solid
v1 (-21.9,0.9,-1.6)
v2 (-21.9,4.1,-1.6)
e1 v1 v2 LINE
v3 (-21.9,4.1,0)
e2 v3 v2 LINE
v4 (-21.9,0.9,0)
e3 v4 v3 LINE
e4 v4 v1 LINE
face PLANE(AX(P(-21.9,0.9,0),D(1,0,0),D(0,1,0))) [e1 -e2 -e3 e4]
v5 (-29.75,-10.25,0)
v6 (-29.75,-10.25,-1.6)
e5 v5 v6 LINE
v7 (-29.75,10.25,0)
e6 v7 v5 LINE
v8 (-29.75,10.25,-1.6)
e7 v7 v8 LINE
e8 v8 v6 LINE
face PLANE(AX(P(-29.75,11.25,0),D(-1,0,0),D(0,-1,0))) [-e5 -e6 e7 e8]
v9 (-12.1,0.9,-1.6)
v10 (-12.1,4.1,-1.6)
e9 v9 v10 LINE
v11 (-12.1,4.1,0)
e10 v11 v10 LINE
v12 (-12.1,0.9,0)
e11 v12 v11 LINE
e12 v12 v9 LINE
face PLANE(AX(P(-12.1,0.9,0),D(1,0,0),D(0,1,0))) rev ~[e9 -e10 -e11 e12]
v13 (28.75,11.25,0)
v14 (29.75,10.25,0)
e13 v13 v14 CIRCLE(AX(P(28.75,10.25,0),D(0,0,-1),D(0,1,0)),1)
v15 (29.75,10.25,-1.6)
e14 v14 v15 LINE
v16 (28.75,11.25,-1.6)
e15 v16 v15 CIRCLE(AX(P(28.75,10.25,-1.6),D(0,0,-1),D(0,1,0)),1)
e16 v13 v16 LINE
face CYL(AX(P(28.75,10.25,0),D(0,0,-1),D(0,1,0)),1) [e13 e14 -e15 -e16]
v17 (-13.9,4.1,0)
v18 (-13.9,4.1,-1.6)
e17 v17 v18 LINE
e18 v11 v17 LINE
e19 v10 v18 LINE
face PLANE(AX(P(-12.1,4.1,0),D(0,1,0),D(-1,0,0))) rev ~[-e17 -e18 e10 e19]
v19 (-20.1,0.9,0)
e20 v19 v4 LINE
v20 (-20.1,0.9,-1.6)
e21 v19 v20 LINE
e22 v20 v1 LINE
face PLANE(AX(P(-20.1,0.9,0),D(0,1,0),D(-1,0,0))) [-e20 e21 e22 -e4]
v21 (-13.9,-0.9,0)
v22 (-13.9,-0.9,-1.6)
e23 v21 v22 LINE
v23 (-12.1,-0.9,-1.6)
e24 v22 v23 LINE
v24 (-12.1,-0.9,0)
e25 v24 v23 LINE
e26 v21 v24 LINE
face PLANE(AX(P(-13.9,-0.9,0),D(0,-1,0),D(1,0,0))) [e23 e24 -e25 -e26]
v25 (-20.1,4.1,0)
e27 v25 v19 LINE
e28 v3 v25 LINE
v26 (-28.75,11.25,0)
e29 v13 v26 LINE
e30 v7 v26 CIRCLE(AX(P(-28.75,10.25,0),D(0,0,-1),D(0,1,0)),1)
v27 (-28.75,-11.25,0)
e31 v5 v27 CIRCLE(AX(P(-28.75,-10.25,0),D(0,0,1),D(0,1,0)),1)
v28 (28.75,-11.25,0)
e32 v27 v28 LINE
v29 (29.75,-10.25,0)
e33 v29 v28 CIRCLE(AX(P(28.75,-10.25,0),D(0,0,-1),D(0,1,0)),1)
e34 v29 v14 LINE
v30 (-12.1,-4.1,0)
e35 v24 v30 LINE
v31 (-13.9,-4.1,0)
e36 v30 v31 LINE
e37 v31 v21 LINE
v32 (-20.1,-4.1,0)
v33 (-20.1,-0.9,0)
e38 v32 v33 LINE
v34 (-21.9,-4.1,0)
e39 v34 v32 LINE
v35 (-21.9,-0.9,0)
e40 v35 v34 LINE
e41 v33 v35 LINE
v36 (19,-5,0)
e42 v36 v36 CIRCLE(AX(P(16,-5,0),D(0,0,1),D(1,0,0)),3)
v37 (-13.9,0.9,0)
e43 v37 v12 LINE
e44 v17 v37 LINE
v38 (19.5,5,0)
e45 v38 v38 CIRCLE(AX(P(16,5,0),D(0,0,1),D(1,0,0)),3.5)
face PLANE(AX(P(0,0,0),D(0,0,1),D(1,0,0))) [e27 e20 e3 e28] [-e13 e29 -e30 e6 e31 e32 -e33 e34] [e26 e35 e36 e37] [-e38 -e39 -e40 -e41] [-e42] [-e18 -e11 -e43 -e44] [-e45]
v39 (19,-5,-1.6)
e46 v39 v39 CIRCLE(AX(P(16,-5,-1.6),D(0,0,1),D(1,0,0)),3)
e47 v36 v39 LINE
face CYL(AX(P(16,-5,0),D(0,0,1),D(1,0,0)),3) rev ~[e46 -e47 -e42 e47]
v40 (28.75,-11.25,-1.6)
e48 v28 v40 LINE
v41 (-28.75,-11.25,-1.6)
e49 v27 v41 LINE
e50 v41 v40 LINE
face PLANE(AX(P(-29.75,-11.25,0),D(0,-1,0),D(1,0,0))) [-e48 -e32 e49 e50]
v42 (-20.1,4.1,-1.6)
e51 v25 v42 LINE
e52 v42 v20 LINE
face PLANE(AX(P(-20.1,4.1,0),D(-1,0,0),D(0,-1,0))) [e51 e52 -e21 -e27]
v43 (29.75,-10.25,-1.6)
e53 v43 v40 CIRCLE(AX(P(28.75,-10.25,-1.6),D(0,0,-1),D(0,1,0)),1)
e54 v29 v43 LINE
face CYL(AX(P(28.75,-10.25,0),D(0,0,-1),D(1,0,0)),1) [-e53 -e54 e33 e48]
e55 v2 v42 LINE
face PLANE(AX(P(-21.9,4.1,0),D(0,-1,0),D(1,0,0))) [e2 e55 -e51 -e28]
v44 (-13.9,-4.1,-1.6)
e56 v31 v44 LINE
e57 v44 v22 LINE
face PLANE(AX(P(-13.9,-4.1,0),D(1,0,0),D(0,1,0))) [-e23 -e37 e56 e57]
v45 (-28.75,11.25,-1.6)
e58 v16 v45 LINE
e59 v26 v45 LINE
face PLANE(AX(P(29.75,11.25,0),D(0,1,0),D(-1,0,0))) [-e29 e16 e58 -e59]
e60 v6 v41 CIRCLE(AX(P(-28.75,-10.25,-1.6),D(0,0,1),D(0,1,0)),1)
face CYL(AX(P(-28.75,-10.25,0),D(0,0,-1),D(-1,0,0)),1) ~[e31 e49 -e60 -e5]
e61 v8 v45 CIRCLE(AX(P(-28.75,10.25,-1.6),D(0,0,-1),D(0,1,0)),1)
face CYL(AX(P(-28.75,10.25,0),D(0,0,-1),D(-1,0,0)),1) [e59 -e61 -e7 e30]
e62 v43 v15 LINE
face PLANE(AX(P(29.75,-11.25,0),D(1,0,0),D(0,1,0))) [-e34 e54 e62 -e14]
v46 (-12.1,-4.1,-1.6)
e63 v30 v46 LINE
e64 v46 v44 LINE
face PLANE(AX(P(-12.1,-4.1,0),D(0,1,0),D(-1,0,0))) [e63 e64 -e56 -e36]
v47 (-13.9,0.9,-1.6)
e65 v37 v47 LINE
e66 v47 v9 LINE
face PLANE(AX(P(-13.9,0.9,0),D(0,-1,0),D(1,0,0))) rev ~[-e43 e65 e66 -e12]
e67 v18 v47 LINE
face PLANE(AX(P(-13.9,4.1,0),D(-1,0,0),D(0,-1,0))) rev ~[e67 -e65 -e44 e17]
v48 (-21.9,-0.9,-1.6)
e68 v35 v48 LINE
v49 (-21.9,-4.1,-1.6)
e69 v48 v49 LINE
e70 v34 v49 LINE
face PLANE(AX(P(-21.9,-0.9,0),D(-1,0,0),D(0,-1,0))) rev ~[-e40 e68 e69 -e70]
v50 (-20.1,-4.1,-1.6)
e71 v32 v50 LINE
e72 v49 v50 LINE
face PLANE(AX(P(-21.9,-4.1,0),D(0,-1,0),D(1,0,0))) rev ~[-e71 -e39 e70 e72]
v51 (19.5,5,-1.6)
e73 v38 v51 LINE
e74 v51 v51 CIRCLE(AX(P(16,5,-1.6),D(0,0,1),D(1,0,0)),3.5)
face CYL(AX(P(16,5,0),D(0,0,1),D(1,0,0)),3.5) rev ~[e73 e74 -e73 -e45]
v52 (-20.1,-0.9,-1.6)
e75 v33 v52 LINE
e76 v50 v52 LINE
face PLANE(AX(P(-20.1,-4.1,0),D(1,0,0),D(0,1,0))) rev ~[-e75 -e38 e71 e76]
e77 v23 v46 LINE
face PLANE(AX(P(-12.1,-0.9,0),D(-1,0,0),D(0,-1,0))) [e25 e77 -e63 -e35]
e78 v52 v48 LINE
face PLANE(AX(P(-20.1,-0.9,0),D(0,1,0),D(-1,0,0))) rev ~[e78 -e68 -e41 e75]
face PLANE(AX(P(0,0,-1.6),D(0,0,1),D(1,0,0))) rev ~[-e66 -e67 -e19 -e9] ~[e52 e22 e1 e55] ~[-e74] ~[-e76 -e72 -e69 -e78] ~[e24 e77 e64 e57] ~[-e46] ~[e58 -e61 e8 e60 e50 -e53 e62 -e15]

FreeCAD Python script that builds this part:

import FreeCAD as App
import Part
import Sketcher
from FreeCAD import Vector
Q = App.Units.Quantity


def edges_at(feature, points):
    """Names of the edges that pass closest to the given points."""
    edges = feature.Shape.Edges
    near = lambda p: min(range(len(edges)), key=lambda i: edges[i].distToShape(Part.Vertex(*p))[0])
    return sorted({f"Edge{near(p) + 1}" for p in points})

doc = App.newDocument("Part")
body = doc.addObject("PartDesign::Body", "Body")

sketch1 = body.newObject("Sketcher::SketchObject", "Sketch")
sketch1.AttachmentSupport = (doc.getObject("XY_Plane"), [""])
sketch1.MapMode = "FlatFace"
sketch1.addGeometry(Part.LineSegment(Vector(-29.75, 11.25, 0), Vector(-29.75, -11.25, 0)), False)
sketch1.addGeometry(Part.LineSegment(Vector(-29.75, -11.25, 0), Vector(29.75, -11.25, 0)), False)
sketch1.addGeometry(Part.LineSegment(Vector(29.75, -11.25, 0), Vector(29.75, 11.25, 0)), False)
sketch1.addGeometry(Part.LineSegment(Vector(29.75, 11.25, 0), Vector(-29.75, 11.25, 0)), False)
sketch1.addConstraint(Sketcher.Constraint("Coincident", 0, 2, 1, 1))
sketch1.addConstraint(Sketcher.Constraint("Coincident", 1, 2, 2, 1))
sketch1.addConstraint(Sketcher.Constraint("Coincident", 2, 2, 3, 1))
sketch1.addConstraint(Sketcher.Constraint("Coincident", 3, 2, 0, 1))
sketch1.addConstraint(Sketcher.Constraint("Vertical", 0))
sketch1.addConstraint(Sketcher.Constraint("Horizontal", 1))
sketch1.addConstraint(Sketcher.Constraint("Vertical", 2))
sketch1.addConstraint(Sketcher.Constraint("Horizontal", 3))
sketch1.addConstraint(Sketcher.Constraint("Symmetric", 0, 2, 2, 2, -1, 1))
sketch1.addConstraint(Sketcher.Constraint("DistanceX", 1, 1, 1, 2, Q("59.5 mm")))
sketch1.addConstraint(Sketcher.Constraint("DistanceY", 0, 2, 0, 1, Q("22.5 mm")))
pad1 = body.newObject("PartDesign::Pad", "Pad")
pad1.Profile = sketch1
pad1.Length = 1.6
pad1.Reversed = True
doc.recompute()

fillet = body.newObject("PartDesign::Fillet", "Fillet")
fillet.Base = (pad1, edges_at(pad1, [
    (29.75, 11.25, -0.8),
    (-29.75, 11.25, -0.8),
    (29.75, -11.25, -0.8),
    (-29.75, -11.25, -0.8),
]))
fillet.Radius = 1

sketch2 = body.newObject("Sketcher::SketchObject", "Sketch001")
sketch2.AttachmentSupport = (doc.getObject("XY_Plane"), [""])
sketch2.MapMode = "FlatFace"
sketch2.addGeometry(Part.LineSegment(Vector(-20.1, 4.1, 0), Vector(-21.9, 4.1, 0)), False)
sketch2.addGeometry(Part.LineSegment(Vector(-21.9, 4.1, 0), Vector(-21.9, 0.9, 0)), False)
sketch2.addGeometry(Part.LineSegment(Vector(-21.9, 0.9, 0), Vector(-20.1, 0.9, 0)), False)
sketch2.addGeometry(Part.LineSegment(Vector(-20.1, 0.9, 0), Vector(-20.1, 4.1, 0)), False)
sketch2.addGeometry(Part.LineSegment(Vector(-20.1, -4.1, 0), Vector(-20.1, -0.9, 0)), False)
sketch2.addGeometry(Part.LineSegment(Vector(-20.1, -0.9, 0), Vector(-21.9, -0.9, 0)), False)
sketch2.addGeometry(Part.LineSegment(Vector(-21.9, -0.9, 0), Vector(-21.9, -4.1, 0)), False)
sketch2.addGeometry(Part.LineSegment(Vector(-21.9, -4.1, 0), Vector(-20.1, -4.1, 0)), False)
sketch2.addGeometry(Part.LineSegment(Vector(-12.1, 0.9, 0), Vector(-12.1, 4.1, 0)), False)
sketch2.addGeometry(Part.LineSegment(Vector(-12.1, 4.1, 0), Vector(-13.9, 4.1, 0)), False)
sketch2.addGeometry(Part.LineSegment(Vector(-13.9, 4.1, 0), Vector(-13.9, 0.9, 0)), False)
sketch2.addGeometry(Part.LineSegment(Vector(-13.9, 0.9, 0), Vector(-12.1, 0.9, 0)), False)
sketch2.addGeometry(Part.LineSegment(Vector(-12.1, -0.9, 0), Vector(-13.9, -0.9, 0)), False)
sketch2.addGeometry(Part.LineSegment(Vector(-13.9, -0.9, 0), Vector(-13.9, -4.1, 0)), False)
sketch2.addGeometry(Part.LineSegment(Vector(-13.9, -4.1, 0), Vector(-12.1, -4.1, 0)), False)
sketch2.addGeometry(Part.LineSegment(Vector(-12.1, -4.1, 0), Vector(-12.1, -0.9, 0)), False)
sketch2.addConstraint(Sketcher.Constraint("Coincident", 0, 2, 1, 1))
sketch2.addConstraint(Sketcher.Constraint("Coincident", 1, 2, 2, 1))
sketch2.addConstraint(Sketcher.Constraint("Coincident", 2, 2, 3, 1))
sketch2.addConstraint(Sketcher.Constraint("Coincident", 3, 2, 0, 1))
sketch2.addConstraint(Sketcher.Constraint("Coincident", 4, 2, 5, 1))
sketch2.addConstraint(Sketcher.Constraint("Coincident", 5, 2, 6, 1))
sketch2.addConstraint(Sketcher.Constraint("Coincident", 6, 2, 7, 1))
sketch2.addConstraint(Sketcher.Constraint("Coincident", 7, 2, 4, 1))
sketch2.addConstraint(Sketcher.Constraint("Coincident", 8, 2, 9, 1))
sketch2.addConstraint(Sketcher.Constraint("Coincident", 9, 2, 10, 1))
sketch2.addConstraint(Sketcher.Constraint("Coincident", 10, 2, 11, 1))
sketch2.addConstraint(Sketcher.Constraint("Coincident", 11, 2, 8, 1))
sketch2.addConstraint(Sketcher.Constraint("Coincident", 12, 2, 13, 1))
sketch2.addConstraint(Sketcher.Constraint("Coincident", 13, 2, 14, 1))
sketch2.addConstraint(Sketcher.Constraint("Coincident", 14, 2, 15, 1))
sketch2.addConstraint(Sketcher.Constraint("Coincident", 15, 2, 12, 1))
sketch2.addConstraint(Sketcher.Constraint("Horizontal", 0))
sketch2.addConstraint(Sketcher.Constraint("Vertical", 1))
sketch2.addConstraint(Sketcher.Constraint("Horizontal", 2))
sketch2.addConstraint(Sketcher.Constraint("Vertical", 3))
sketch2.addConstraint(Sketcher.Constraint("Vertical", 4))
sketch2.addConstraint(Sketcher.Constraint("Horizontal", 5))
sketch2.addConstraint(Sketcher.Constraint("Vertical", 6))
sketch2.addConstraint(Sketcher.Constraint("Horizontal", 7))
sketch2.addConstraint(Sketcher.Constraint("Vertical", 8))
sketch2.addConstraint(Sketcher.Constraint("Horizontal", 9))
sketch2.addConstraint(Sketcher.Constraint("Vertical", 10))
sketch2.addConstraint(Sketcher.Constraint("Horizontal", 11))
sketch2.addConstraint(Sketcher.Constraint("Horizontal", 12))
sketch2.addConstraint(Sketcher.Constraint("Vertical", 13))
sketch2.addConstraint(Sketcher.Constraint("Horizontal", 14))
sketch2.addConstraint(Sketcher.Constraint("Vertical", 15))
sketch2.addConstraint(Sketcher.Constraint("Symmetric", 2, 2, 4, 2, -1))
sketch2.addConstraint(Sketcher.Constraint("Symmetric", 0, 2, 6, 2, -1))
sketch2.addConstraint(Sketcher.Constraint("Symmetric", 10, 2, 12, 2, -1))
sketch2.addConstraint(Sketcher.Constraint("Symmetric", 8, 2, 14, 2, -1))
sketch2.addConstraint(Sketcher.Constraint("Horizontal", 3, 2, 8, 2))
sketch2.addConstraint(Sketcher.Constraint("Horizontal", 2, 2, 10, 2))
sketch2.addConstraint(Sketcher.Constraint("Equal", 7, 9))
sketch2.addConstraint(Sketcher.Constraint("DistanceX", 0, 2, 0, 1, Q("1.8 mm")))
sketch2.addConstraint(Sketcher.Constraint("DistanceY", 1, 2, 1, 1, Q("3.2 mm")))
sketch2.addConstraint(Sketcher.Constraint("DistanceY", -1, 1, 1, 2, Q("0.9 mm")))
sketch2.addConstraint(Sketcher.Constraint("DistanceX", 3, 2, 8, 2, Q("8 mm")))
sketch2.addConstraint(Sketcher.Constraint("DistanceX", 0, 2, -1, 1, Q("21.9 mm")))
pocket1 = body.newObject("PartDesign::Pocket", "Pocket")
pocket1.Profile = sketch2
pocket1.Length = 1.6

sketch3 = body.newObject("Sketcher::SketchObject", "Sketch002")
sketch3.AttachmentSupport = (doc.getObject("XY_Plane"), [""])
sketch3.MapMode = "FlatFace"
sketch3.addGeometry(Part.Circle(Vector(16, 5, 0), Vector(0, 0, 1), 3.5), False)
sketch3.addGeometry(Part.Circle(Vector(16, -5, 0), Vector(0, 0, 1), 3), False)
sketch3.addConstraint(Sketcher.Constraint("Symmetric", 0, 3, 1, 3, -1))
sketch3.addConstraint(Sketcher.Constraint("Diameter", 0, Q("7 mm")))
sketch3.addConstraint(Sketcher.Constraint("Diameter", 1, Q("6 mm")))
sketch3.addConstraint(Sketcher.Constraint("DistanceX", -1, 1, 0, 3, Q("16 mm")))
sketch3.addConstraint(Sketcher.Constraint("DistanceY", -1, 1, 0, 3, Q("5 mm")))
pocket2 = body.newObject("PartDesign::Pocket", "Pocket001")
pocket2.Profile = sketch3
pocket2.Type = "ThroughAll"

doc.recompute()
